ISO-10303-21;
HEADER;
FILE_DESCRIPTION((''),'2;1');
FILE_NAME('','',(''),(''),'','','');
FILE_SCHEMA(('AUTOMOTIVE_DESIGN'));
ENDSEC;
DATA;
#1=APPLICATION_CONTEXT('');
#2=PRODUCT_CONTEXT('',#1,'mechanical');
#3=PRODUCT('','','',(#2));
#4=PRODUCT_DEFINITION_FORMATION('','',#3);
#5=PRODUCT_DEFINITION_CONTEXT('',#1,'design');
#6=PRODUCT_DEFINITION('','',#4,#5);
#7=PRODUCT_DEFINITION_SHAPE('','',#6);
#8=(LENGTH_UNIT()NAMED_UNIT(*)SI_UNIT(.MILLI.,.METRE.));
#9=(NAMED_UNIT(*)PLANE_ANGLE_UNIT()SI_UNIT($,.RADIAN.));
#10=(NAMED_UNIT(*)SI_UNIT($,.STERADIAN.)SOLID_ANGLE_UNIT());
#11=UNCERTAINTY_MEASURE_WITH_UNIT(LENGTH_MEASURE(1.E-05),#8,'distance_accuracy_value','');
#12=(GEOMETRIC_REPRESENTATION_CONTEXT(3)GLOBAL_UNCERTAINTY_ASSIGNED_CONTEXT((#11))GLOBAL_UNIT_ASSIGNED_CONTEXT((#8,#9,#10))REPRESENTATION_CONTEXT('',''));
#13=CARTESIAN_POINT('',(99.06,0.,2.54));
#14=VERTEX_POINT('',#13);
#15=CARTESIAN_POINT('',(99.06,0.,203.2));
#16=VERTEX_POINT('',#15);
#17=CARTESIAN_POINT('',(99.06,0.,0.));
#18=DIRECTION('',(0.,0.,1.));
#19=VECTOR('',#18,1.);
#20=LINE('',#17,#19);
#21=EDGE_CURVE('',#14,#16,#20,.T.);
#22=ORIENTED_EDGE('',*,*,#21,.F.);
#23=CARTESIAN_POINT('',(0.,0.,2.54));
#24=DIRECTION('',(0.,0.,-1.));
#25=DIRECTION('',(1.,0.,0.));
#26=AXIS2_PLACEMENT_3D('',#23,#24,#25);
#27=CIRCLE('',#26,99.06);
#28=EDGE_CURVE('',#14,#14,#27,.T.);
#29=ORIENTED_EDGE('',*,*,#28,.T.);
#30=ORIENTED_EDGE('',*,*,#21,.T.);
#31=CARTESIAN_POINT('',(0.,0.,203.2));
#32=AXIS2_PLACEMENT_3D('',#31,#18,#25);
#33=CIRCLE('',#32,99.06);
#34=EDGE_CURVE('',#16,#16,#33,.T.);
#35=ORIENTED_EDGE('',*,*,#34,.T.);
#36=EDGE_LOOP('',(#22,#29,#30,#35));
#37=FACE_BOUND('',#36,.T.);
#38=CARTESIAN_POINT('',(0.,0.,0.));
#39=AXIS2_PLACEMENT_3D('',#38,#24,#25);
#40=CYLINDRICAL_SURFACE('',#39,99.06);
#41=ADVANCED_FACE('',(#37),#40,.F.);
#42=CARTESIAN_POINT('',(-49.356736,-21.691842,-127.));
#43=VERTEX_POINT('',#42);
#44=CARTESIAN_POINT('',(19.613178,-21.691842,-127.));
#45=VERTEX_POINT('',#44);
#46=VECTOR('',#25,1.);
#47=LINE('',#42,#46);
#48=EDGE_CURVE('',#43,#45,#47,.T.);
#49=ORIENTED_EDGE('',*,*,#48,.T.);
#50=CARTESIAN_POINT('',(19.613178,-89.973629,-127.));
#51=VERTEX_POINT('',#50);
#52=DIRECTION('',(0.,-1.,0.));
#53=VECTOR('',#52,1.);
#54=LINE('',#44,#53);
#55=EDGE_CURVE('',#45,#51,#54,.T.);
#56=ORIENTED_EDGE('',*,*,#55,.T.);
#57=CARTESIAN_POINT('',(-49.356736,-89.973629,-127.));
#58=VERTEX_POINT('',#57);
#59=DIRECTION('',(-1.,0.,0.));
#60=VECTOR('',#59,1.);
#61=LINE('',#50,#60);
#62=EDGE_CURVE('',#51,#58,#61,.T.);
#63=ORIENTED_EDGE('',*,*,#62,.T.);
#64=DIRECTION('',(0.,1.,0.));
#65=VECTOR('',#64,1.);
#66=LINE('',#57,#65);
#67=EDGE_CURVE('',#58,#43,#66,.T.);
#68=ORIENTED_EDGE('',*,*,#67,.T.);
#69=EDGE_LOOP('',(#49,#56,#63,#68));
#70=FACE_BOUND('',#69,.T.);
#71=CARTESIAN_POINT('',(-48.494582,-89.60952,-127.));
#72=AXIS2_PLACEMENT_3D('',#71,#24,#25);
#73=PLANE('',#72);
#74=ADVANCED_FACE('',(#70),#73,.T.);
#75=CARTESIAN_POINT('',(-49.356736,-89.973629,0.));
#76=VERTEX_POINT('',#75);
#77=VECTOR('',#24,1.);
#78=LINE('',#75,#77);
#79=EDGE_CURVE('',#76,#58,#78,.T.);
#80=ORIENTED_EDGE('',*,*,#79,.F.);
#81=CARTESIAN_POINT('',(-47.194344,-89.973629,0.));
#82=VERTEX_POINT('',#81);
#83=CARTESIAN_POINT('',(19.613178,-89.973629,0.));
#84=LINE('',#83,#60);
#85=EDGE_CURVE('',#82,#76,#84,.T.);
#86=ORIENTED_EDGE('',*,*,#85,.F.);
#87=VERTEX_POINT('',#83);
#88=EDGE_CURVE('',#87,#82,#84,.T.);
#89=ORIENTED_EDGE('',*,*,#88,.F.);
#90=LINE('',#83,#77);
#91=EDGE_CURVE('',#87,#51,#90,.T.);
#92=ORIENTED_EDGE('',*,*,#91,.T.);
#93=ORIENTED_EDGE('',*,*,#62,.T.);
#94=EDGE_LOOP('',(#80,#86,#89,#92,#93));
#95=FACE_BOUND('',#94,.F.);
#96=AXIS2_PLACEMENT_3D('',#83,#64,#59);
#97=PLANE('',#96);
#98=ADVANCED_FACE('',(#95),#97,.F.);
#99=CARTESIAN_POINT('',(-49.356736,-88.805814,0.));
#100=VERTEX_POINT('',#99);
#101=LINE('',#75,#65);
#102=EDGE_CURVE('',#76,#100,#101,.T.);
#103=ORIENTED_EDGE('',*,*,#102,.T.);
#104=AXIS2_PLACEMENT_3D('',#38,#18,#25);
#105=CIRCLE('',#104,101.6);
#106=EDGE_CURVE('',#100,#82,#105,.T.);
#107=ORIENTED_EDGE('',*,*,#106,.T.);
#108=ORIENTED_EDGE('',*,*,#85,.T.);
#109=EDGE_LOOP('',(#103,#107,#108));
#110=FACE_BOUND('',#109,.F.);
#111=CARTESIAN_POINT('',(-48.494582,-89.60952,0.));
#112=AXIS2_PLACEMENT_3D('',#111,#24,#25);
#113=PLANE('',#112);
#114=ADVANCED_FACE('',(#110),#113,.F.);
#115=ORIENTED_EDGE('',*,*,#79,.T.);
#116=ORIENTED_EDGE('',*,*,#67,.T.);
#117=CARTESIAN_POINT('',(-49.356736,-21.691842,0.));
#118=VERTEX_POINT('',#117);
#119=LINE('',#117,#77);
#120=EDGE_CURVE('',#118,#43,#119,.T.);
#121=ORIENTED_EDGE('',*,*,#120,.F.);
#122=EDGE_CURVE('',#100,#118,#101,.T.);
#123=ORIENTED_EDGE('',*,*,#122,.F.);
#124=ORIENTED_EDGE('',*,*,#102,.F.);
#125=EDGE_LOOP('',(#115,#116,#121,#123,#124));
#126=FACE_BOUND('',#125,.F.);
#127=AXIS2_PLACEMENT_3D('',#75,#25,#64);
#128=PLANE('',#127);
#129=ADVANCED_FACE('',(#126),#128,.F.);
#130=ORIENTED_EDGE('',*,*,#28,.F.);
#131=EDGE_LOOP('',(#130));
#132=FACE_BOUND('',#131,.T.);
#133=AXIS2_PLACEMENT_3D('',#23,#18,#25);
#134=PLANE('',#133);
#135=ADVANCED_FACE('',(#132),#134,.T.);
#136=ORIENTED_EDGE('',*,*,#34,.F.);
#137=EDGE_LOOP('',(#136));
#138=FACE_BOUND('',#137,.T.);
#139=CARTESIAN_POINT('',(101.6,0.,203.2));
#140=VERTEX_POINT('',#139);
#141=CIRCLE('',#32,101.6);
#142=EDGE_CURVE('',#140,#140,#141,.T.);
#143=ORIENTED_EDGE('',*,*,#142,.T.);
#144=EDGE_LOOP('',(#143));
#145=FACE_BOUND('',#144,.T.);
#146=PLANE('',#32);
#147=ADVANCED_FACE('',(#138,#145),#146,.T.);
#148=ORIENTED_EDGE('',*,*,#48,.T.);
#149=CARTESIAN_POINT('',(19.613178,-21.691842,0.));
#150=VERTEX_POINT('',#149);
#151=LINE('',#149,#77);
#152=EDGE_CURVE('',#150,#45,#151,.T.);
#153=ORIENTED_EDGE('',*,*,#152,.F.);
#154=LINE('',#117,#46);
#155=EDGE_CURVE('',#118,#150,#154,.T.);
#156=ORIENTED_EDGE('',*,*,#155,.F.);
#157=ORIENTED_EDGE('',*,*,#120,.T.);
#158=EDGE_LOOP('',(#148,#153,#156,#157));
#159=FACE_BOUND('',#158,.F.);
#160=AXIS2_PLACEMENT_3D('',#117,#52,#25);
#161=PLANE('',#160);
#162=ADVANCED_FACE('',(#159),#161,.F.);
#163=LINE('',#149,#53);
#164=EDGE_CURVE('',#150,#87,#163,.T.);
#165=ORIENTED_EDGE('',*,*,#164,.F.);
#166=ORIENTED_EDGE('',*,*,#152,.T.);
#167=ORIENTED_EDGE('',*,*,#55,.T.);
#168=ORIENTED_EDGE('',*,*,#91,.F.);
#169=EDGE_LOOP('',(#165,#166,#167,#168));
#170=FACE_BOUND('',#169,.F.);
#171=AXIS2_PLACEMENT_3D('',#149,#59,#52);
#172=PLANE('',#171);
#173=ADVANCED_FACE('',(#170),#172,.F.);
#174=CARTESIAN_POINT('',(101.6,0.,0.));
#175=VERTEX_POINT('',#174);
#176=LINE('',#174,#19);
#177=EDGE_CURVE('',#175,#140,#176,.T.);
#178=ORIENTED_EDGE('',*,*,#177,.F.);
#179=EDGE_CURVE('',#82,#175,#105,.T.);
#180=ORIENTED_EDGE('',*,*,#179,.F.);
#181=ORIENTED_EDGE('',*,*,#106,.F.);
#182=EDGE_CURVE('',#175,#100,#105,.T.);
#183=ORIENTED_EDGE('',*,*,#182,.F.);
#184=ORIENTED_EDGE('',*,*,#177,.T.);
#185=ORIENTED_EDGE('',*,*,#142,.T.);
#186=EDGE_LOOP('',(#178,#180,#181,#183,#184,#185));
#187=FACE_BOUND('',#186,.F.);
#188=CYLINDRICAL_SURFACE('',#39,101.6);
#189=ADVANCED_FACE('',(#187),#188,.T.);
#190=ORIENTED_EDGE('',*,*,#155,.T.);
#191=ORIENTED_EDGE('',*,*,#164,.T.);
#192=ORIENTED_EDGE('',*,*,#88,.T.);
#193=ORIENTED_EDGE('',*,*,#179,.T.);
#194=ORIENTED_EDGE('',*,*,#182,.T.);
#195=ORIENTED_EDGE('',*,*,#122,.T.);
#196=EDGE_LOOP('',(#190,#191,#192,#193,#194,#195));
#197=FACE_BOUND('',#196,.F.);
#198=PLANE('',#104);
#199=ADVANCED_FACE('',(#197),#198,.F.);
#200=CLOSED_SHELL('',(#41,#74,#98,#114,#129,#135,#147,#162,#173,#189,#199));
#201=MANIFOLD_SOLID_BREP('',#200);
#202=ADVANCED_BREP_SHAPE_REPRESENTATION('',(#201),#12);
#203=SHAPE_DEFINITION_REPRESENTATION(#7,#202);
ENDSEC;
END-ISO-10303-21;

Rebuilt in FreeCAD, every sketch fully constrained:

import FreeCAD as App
import Part
import Sketcher
from FreeCAD import Vector
Q = App.Units.Quantity


def faces_at(feature, points):
    """Names of the faces that lie closest to the given points."""
    faces = feature.Shape.Faces
    near = lambda p: min(range(len(faces)), key=lambda i: faces[i].distToShape(Part.Vertex(*p))[0])
    return sorted({f"Face{near(p) + 1}" for p in points})


def add_polygon(sketch, points):
    """Adds a closed chain of lines whose ends are joined by coincident constraints."""
    first, n = sketch.GeometryCount, len(points)
    for a, b in zip(points, points[1:] + points[:1]):
        sketch.addGeometry(Part.LineSegment(App.Vector(*a, 0), App.Vector(*b, 0)), False)
    for i in range(n):
        sketch.addConstraint(Sketcher.Constraint("Coincident", first + i, 2, first + (i + 1) % n, 1))

doc = App.newDocument("Part")
body = doc.addObject("PartDesign::Body", "Body")

# Sketch on XY plane
sketch1 = body.newObject("Sketcher::SketchObject", "Sketch")
sketch1.AttachmentSupport = (doc.getObject("XY_Plane"), [""])
sketch1.MapMode = "FlatFace"
sketch1.addGeometry(Part.Circle(Vector(0, 0, 0), Vector(0, 0, 1), 102), False)
sketch1.addConstraint([
    Sketcher.Constraint("Coincident", 0, 3, -1, 1),
    Sketcher.Constraint("Diameter", 0, Q("8 in")),
])
pad1 = body.newObject("PartDesign::Pad", "Pad")
pad1.Profile = sketch1
pad1.Length = Q("8 in")
doc.recompute()

thickness = body.newObject("PartDesign::Thickness", "Thickness")
thickness.Base = (pad1, faces_at(pad1, [(0, 0, 203.2)]))
thickness.Value = Q("0.1 in")
thickness.Reversed = True
thickness.Join = "Arc"

# Sketch on XY plane
sketch2 = body.newObject("Sketcher::SketchObject", "Sketch001")
sketch2.AttachmentSupport = (doc.getObject("XY_Plane"), [""])
sketch2.MapMode = "FlatFace"
add_polygon(sketch2, [(-49, -90), (-49, -22), (20, -22), (20, -90)])  # lines 0-3
sketch2.addConstraint([
    Sketcher.Constraint("Vertical", 0),
    Sketcher.Constraint("Horizontal", 1),
    Sketcher.Constraint("Vertical", 2),
    Sketcher.Constraint("Horizontal", 3),
    Sketcher.Constraint("DistanceX", 1, 1, 1, 2, 68.969914),
    Sketcher.Constraint("DistanceY", 0, 1, 0, 2, 68.281787),
    Sketcher.Constraint("DistanceX", -1, 1, 1, 2, 19.613178),
    Sketcher.Constraint("DistanceY", 2, 2, -1, 1, 89.973629),
])
pad2 = body.newObject("PartDesign::Pad", "Pad001")
pad2.Profile = sketch2
pad2.Length = Q("5 in")
pad2.Reversed = True

doc.recompute()
